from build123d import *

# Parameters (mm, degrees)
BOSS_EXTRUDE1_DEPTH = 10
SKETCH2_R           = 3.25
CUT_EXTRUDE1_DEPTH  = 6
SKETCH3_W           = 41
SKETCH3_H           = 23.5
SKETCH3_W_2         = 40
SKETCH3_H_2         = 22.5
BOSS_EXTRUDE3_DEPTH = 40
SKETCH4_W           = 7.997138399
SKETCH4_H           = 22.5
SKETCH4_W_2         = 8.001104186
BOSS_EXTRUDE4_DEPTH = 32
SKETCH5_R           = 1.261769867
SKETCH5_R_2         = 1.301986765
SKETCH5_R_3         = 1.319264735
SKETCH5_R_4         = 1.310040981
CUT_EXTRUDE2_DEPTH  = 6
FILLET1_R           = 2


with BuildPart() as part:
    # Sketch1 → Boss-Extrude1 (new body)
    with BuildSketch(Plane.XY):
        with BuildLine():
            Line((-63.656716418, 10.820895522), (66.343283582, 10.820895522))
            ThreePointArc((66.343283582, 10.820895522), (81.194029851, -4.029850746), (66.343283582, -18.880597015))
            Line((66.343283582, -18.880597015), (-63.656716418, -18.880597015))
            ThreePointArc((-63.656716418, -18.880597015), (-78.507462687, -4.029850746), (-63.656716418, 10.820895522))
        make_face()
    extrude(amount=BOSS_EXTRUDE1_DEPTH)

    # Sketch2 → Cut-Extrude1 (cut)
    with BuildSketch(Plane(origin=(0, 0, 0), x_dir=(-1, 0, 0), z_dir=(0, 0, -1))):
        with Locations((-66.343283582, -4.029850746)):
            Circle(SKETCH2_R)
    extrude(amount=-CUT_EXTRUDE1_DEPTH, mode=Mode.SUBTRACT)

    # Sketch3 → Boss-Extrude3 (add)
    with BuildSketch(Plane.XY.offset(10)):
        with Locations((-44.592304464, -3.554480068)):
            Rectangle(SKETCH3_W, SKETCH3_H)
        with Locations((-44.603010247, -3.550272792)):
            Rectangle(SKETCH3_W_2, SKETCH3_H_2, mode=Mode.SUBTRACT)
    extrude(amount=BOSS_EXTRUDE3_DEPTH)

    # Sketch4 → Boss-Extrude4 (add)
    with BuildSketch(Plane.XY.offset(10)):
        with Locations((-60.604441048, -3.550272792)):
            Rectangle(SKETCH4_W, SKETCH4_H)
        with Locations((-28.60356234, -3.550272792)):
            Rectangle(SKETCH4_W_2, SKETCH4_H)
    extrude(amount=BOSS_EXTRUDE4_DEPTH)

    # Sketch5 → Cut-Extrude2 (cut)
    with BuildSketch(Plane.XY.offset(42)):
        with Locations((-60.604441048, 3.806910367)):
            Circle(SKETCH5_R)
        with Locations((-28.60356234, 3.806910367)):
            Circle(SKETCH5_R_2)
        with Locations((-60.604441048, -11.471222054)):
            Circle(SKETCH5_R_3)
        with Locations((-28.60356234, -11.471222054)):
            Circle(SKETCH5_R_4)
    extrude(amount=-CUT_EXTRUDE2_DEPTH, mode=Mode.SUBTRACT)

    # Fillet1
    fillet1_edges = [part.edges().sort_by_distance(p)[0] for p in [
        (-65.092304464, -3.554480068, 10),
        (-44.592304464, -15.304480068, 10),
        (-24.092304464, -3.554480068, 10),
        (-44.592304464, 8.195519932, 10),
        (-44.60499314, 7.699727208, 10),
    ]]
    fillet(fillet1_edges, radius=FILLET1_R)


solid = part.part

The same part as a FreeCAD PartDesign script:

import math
import FreeCAD as App
import Part
import Sketcher
from FreeCAD import Vector
Q = App.Units.Quantity


def edges_at(feature, points):
    """Names of the edges that pass closest to the given points."""
    edges = feature.Shape.Edges
    near = lambda p: min(range(len(edges)), key=lambda i: edges[i].distToShape(Part.Vertex(*p))[0])
    return sorted({f"Edge{near(p) + 1}" for p in points})


def add_polygon(sketch, points):
    """Adds a closed chain of lines whose ends are joined by coincident constraints."""
    first, n = sketch.GeometryCount, len(points)
    for a, b in zip(points, points[1:] + points[:1]):
        sketch.addGeometry(Part.LineSegment(App.Vector(*a, 0), App.Vector(*b, 0)), False)
    for i in range(n):
        sketch.addConstraint(Sketcher.Constraint("Coincident", first + i, 2, first + (i + 1) % n, 1))

doc = App.newDocument("Part")
body = doc.addObject("PartDesign::Body", "Body")

# Sketch on XY plane
sketch1 = body.newObject("Sketcher::SketchObject", "Sketch")
sketch1.AttachmentSupport = (doc.getObject("XY_Plane"), [""])
sketch1.MapMode = "FlatFace"
sketch1.addGeometry([
    Part.LineSegment(Vector(66.343284, 10.820896, 0), Vector(-63.656716, 10.820896, 0)),
    Part.ArcOfCircle(Part.Circle(Vector(-63.656716, -4.029851, 0), Vector(0, 0, 1), 14.850746), math.radians(90), math.radians(270)),
    Part.LineSegment(Vector(-63.656716, -18.880597, 0), Vector(66.343284, -18.880597, 0)),
    Part.ArcOfCircle(Part.Circle(Vector(66.343284, -4.029851, 0), Vector(0, 0, 1), 14.850746), math.radians(-90), math.radians(90)),
], False)
sketch1.addConstraint([
    Sketcher.Constraint("Tangent", 0, 2, 1, 1),
    Sketcher.Constraint("Tangent", 1, 2, 2, 1),
    Sketcher.Constraint("Tangent", 2, 2, 3, 1),
    Sketcher.Constraint("Tangent", 3, 2, 0, 1),
    Sketcher.Constraint("Horizontal", 0),
    Sketcher.Constraint("Horizontal", 2),
    Sketcher.Constraint("DistanceX", 0, 2, 0, 1, Q("130 mm")),
    Sketcher.Constraint("Radius", 1, Q("14.850746 mm")),
    Sketcher.Constraint("DistanceY", 1, 3, -1, 1, Q("4.029851 mm")),
    Sketcher.Constraint("DistanceX", 1, 3, -1, 1, Q("63.656716 mm")),
])
pad1 = body.newObject("PartDesign::Pad", "Pad")
pad1.Profile = sketch1
pad1.Length = 10

# Sketch on XY plane
sketch2 = body.newObject("Sketcher::SketchObject", "Sketch001")
sketch2.AttachmentSupport = (doc.getObject("XY_Plane"), [""])
sketch2.MapMode = "FlatFace"
sketch2.addGeometry(Part.Circle(Vector(66.343284, -4.029851, 0), Vector(0, 0, 1), 3.25), False)
sketch2.addConstraint([
    Sketcher.Constraint("Diameter", 0, Q("6.5 mm")),
    Sketcher.Constraint("DistanceY", 0, 3, -1, 1, Q("4.029851 mm")),
    Sketcher.Constraint("DistanceX", -1, 1, 0, 3, Q("66.343284 mm")),
])
pocket1 = body.newObject("PartDesign::Pocket", "Pocket")
pocket1.Profile = sketch2
pocket1.Length = 6
pocket1.Reversed = True

# Sketch on XY plane
sketch3 = body.newObject("Sketcher::SketchObject", "Sketch002")
sketch3.AttachmentSupport = (doc.getObject("XY_Plane"), [""])
sketch3.MapMode = "FlatFace"
sketch3.AttachmentOffset = App.Placement(Vector(0, 0, 10), App.Rotation())
add_polygon(sketch3, [(-65.092304, 8.19552), (-65.092304, -15.30448), (-24.092304, -15.30448), (-24.092304, 8.19552)])  # lines 0-3
add_polygon(sketch3, [(-24.60301, -14.800273), (-64.60301, -14.800273), (-64.60301, 7.699727), (-24.60301, 7.699727)])  # lines 4-7
sketch3.addConstraint([
    Sketcher.Constraint("Vertical", 0),
    Sketcher.Constraint("Horizontal", 1),
    Sketcher.Constraint("Vertical", 2),
    Sketcher.Constraint("Horizontal", 3),
    Sketcher.Constraint("Horizontal", 4),
    Sketcher.Constraint("Vertical", 5),
    Sketcher.Constraint("Horizontal", 6),
    Sketcher.Constraint("Vertical", 7),
    Sketcher.Constraint("DistanceX", 1, 1, 1, 2, Q("41 mm")),
    Sketcher.Constraint("DistanceX", 4, 2, 4, 1, Q("40 mm")),
    Sketcher.Constraint("DistanceY", 0, 2, 0, 1, Q("23.5 mm")),
    Sketcher.Constraint("DistanceY", 5, 1, 5, 2, Q("22.5 mm")),
    Sketcher.Constraint("DistanceY", 0, 2, -1, 1, Q("15.30448 mm")),
    Sketcher.Constraint("DistanceX", 4, 2, -1, 1, Q("64.60301 mm")),
    Sketcher.Constraint("DistanceX", 0, 2, -1, 1, Q("65.092304 mm")),
    Sketcher.Constraint("DistanceY", 4, 2, -1, 1, Q("14.800273 mm")),
])
pad2 = body.newObject("PartDesign::Pad", "Pad001")
pad2.Profile = sketch3
pad2.Length = 40

# Sketch on XY plane
sketch4 = body.newObject("Sketcher::SketchObject", "Sketch003")
sketch4.AttachmentSupport = (doc.getObject("XY_Plane"), [""])
sketch4.MapMode = "FlatFace"
sketch4.AttachmentOffset = App.Placement(Vector(0, 0, 10), App.Rotation())
add_polygon(sketch4, [(-64.60301, 7.699727), (-64.60301, -14.800273), (-56.605872, -14.800273), (-56.605872, 7.699727)])  # lines 0-3
add_polygon(sketch4, [(-32.604114, 7.699727), (-32.604114, -14.800273), (-24.60301, -14.800273), (-24.60301, 7.699727)])  # lines 4-7
sketch4.addConstraint([
    Sketcher.Constraint("Vertical", 0),
    Sketcher.Constraint("Horizontal", 1),
    Sketcher.Constraint("Vertical", 2),
    Sketcher.Constraint("Horizontal", 3),
    Sketcher.Constraint("Vertical", 4),
    Sketcher.Constraint("Horizontal", 5),
    Sketcher.Constraint("Vertical", 6),
    Sketcher.Constraint("Horizontal", 7),
    Sketcher.Constraint("Horizontal", 1, 2, 4, 2),
    Sketcher.Constraint("Horizontal", 3, 2, 6, 2),
    Sketcher.Constraint("DistanceY", 0, 2, 0, 1, Q("22.5 mm")),
    Sketcher.Constraint("DistanceX", 0, 2, 5, 2, Q("40 mm")),
    Sketcher.Constraint("DistanceX", 1, 1, 1, 2, Q("7.997138 mm")),
    Sketcher.Constraint("DistanceX", 5, 1, 5, 2, Q("8.001104 mm")),
    Sketcher.Constraint("DistanceX", 0, 2, -1, 1, Q("64.60301 mm")),
    Sketcher.Constraint("DistanceY", 0, 2, -1, 1, Q("14.800273 mm")),
])
pad3 = body.newObject("PartDesign::Pad", "Pad002")
pad3.Profile = sketch4
pad3.Length = 32

# Sketch on XY plane
sketch5 = body.newObject("Sketcher::SketchObject", "Sketch004")
sketch5.AttachmentSupport = (doc.getObject("XY_Plane"), [""])
sketch5.MapMode = "FlatFace"
sketch5.AttachmentOffset = App.Placement(Vector(0, 0, 42), App.Rotation())
sketch5.addGeometry([
    Part.Circle(Vector(-60.604441, 3.80691, 0), Vector(0, 0, 1), 1.26177),
    Part.Circle(Vector(-28.603562, 3.80691, 0), Vector(0, 0, 1), 1.301987),
    Part.Circle(Vector(-60.604441, -11.471222, 0), Vector(0, 0, 1), 1.319265),
    Part.Circle(Vector(-28.603562, -11.471222, 0), Vector(0, 0, 1), 1.310041),
], False)
sketch5.addConstraint([
    Sketcher.Constraint("Horizontal", 0, 3, 1, 3),
    Sketcher.Constraint("Horizontal", 2, 3, 3, 3),
    Sketcher.Constraint("Vertical", 0, 3, 2, 3),
    Sketcher.Constraint("Vertical", 1, 3, 3, 3),
    Sketcher.Constraint("Diameter", 0, Q("2.52354 mm")),
    Sketcher.Constraint("Diameter", 2, Q("2.638529 mm")),
    Sketcher.Constraint("Diameter", 3, Q("2.620082 mm")),
    Sketcher.Constraint("Diameter", 1, Q("2.603974 mm")),
    Sketcher.Constraint("DistanceX", 0, 3, -1, 1, Q("60.604441 mm")),
    Sketcher.Constraint("DistanceY", -1, 1, 0, 3, Q("3.80691 mm")),
    Sketcher.Constraint("DistanceX", 0, 3, 1, 3, Q("32.000879 mm")),
    Sketcher.Constraint("DistanceY", 2, 3, -1, 1, Q("11.471222 mm")),
])
pocket2 = body.newObject("PartDesign::Pocket", "Pocket001")
pocket2.Profile = sketch5
pocket2.Length = 6
doc.recompute()

fillet = body.newObject("PartDesign::Fillet", "Fillet")
fillet.Base = (pocket2, edges_at(pocket2, [
    (-65.092, -3.554, 10),
    (-44.592, -15.304, 10),
    (-24.092, -3.554, 10),
    (-44.592, 8.196, 10),
    (-44.605, 7.7, 10),
]))
fillet.Radius = 2

doc.recompute()
